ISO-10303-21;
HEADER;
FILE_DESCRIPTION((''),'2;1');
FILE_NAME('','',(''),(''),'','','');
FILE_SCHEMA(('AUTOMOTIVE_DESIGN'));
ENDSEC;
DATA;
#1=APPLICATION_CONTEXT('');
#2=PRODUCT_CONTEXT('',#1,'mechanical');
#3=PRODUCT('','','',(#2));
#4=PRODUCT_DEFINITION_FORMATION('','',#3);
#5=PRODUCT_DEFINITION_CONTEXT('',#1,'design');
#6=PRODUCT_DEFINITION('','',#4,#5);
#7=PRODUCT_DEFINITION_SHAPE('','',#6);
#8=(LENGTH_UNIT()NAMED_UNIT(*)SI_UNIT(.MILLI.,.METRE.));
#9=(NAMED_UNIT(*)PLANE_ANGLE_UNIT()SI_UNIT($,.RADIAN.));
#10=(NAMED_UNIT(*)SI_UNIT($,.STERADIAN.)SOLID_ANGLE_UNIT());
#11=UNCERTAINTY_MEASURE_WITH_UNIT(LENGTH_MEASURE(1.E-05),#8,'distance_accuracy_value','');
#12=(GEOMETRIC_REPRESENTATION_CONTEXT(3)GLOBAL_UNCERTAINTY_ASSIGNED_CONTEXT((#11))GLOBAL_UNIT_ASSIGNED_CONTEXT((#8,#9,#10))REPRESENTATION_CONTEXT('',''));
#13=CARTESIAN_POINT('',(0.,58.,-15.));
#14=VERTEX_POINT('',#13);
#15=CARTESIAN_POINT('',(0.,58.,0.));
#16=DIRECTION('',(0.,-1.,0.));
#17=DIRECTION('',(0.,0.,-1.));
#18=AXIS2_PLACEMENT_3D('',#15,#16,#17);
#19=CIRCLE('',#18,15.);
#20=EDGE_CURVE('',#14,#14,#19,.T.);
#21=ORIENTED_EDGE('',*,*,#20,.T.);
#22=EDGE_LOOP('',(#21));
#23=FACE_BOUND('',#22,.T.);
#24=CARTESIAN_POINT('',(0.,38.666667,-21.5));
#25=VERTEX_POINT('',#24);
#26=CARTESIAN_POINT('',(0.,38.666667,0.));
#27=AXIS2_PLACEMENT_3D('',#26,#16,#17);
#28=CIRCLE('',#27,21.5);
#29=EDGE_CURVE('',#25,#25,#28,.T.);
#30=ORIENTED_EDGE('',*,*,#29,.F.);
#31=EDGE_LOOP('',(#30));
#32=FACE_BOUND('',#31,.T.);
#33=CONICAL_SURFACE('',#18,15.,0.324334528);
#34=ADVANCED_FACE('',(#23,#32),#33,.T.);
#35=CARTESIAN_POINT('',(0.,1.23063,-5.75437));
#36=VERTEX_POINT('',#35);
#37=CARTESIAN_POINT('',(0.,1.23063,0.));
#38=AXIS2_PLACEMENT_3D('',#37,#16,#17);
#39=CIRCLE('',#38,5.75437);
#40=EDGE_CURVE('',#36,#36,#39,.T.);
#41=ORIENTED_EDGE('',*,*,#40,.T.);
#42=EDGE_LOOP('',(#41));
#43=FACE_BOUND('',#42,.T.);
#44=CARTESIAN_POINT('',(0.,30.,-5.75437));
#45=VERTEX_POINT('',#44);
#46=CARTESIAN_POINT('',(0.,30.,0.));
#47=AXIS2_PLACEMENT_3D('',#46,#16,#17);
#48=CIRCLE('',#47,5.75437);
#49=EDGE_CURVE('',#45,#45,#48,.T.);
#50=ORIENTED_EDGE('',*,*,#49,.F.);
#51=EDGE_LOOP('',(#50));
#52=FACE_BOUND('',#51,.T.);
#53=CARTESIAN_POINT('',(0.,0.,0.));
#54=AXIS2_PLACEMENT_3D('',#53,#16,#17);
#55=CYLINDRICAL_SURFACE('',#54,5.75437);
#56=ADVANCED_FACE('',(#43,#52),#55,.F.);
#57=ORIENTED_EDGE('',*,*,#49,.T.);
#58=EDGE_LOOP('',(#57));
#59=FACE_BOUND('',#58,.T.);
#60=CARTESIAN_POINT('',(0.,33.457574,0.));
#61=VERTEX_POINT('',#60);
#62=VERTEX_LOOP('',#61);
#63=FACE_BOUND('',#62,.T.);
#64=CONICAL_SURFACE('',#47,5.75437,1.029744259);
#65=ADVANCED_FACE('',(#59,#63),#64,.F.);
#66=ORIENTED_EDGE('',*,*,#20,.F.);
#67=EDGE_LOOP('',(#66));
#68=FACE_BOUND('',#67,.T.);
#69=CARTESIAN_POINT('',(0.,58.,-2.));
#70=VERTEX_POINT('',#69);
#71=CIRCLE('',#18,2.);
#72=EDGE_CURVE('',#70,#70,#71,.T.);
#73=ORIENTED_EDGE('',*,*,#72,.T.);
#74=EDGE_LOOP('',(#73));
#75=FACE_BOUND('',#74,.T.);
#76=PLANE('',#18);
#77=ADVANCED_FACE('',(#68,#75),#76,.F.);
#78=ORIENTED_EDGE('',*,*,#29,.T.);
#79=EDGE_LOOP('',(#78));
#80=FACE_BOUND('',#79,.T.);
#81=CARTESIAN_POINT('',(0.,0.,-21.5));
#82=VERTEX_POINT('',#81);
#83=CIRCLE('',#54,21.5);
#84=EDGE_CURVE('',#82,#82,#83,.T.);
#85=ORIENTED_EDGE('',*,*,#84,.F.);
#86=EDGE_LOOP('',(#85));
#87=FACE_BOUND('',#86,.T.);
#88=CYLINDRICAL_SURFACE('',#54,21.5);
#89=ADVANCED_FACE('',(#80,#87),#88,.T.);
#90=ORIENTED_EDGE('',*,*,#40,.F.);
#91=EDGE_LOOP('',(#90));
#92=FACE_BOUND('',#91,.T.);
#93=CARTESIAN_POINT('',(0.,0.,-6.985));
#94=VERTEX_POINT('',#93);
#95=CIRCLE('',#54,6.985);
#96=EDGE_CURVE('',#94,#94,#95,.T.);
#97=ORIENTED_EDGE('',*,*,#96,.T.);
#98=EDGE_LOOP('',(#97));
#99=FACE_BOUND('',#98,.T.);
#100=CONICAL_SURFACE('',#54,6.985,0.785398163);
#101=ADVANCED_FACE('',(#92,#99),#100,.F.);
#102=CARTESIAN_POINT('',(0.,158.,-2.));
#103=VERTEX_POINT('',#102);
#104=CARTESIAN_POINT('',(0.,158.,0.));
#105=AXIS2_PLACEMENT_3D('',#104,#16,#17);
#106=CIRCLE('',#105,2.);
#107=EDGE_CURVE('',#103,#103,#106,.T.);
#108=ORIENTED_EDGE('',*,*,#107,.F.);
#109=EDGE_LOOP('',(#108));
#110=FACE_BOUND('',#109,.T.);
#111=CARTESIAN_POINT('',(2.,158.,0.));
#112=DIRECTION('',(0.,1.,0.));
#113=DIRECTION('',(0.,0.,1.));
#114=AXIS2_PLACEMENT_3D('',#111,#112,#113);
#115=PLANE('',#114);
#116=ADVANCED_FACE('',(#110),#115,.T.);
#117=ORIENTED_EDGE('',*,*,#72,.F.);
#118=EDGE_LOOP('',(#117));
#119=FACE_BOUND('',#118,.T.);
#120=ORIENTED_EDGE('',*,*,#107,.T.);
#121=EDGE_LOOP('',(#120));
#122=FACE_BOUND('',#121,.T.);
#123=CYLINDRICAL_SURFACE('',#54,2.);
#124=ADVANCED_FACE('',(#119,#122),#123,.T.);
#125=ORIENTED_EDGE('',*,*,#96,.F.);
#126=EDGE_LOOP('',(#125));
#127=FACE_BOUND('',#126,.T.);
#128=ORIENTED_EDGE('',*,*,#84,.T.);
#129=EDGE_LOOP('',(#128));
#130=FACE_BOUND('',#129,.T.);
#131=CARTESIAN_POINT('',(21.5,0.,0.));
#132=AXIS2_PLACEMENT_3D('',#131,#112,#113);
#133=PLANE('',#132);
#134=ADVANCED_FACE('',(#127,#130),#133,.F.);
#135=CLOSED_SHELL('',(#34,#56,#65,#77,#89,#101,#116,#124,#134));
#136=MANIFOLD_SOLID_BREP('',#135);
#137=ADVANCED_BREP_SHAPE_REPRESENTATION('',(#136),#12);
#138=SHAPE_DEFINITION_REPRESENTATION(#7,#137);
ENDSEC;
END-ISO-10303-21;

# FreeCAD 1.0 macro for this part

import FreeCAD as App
import Part
import Sketcher
Q = App.Units.Quantity


def add_polygon(sketch, points):
    """Adds a closed chain of lines whose ends are joined by coincident constraints."""
    first, n = sketch.GeometryCount, len(points)
    for a, b in zip(points, points[1:] + points[:1]):
        sketch.addGeometry(Part.LineSegment(App.Vector(*a, 0), App.Vector(*b, 0)), False)
    for i in range(n):
        sketch.addConstraint(Sketcher.Constraint("Coincident", first + i, 2, first + (i + 1) % n, 1))

doc = App.newDocument("Part")
body = doc.addObject("PartDesign::Body", "Body")

# Sketch on XY plane
sketch1 = doc.addObject("Sketcher::SketchObject", "Sketch")
body.addObject(sketch1)
sketch1.AttachmentSupport = (doc.XY_Plane, [""])
sketch1.MapMode = "FlatFace"
add_polygon(sketch1, [(0, 0), (21.5, 0), (21.5, 38.666667), (15, 58), (2, 58), (2, 158), (0, 158)])  # lines 0-6
sketch1.addConstraint([
    Sketcher.Constraint("Horizontal", 0),
    Sketcher.Constraint("Vertical", 1),
    Sketcher.Constraint("Horizontal", 3),
    Sketcher.Constraint("Vertical", 4),
    Sketcher.Constraint("Horizontal", 5),
    Sketcher.Constraint("Vertical", 6),
    Sketcher.Constraint("Coincident", 6, 2, -1, 1),
    Sketcher.Constraint("DistanceX", 3, 2, 3, 1, Q("13 mm")),
    Sketcher.Constraint("DistanceX", 5, 2, 5, 1, Q("2 mm")),
    Sketcher.Constraint("DistanceY", 4, 1, 4, 2, Q("100 mm")),
    Sketcher.Constraint("DistanceY", 6, 2, 6, 1, Q("158 mm")),
    Sketcher.Constraint("DistanceX", 0, 1, 0, 2, Q("21.5 mm")),
    Sketcher.Constraint("Distance", 2, Q("20.396759 mm")),
])
revolution = doc.addObject("PartDesign::Revolution", "Revolution")
body.addObject(revolution)
revolution.Profile = sketch1
revolution.ReferenceAxis = (sketch1, ["V_Axis"])
revolution.Angle = 360

# Sketch on XZ plane
sketch2 = doc.addObject("Sketcher::SketchObject", "Sketch001")
body.addObject(sketch2)
sketch2.AttachmentSupport = (doc.XZ_Plane, [""])
sketch2.MapMode = "FlatFace"
sketch2.addGeometry(Part.Circle(App.Vector(0, 0, 0), App.Vector(0, 0, 1), 5.75437), False)
sketch2.addConstraint([
    Sketcher.Constraint("Coincident", 0, 3, -1, 1),
    Sketcher.Constraint("Diameter", 0, Q("11.50874 mm")),
])
doc.recompute()
hole = doc.addObject("PartDesign::Hole", "Hole")
body.addObject(hole)
hole.Profile = sketch2
hole.ThreadType = "None"
hole.Diameter = 11.50874
hole.DepthType = "Dimension"
hole.Depth = 30
hole.DrillPoint = "Angled"
hole.DrillPointAngle = 118
hole.HoleCutType = "Countersink"
hole.HoleCutDiameter = 13.97
hole.HoleCutCountersinkAngle = 90

doc.recompute()
